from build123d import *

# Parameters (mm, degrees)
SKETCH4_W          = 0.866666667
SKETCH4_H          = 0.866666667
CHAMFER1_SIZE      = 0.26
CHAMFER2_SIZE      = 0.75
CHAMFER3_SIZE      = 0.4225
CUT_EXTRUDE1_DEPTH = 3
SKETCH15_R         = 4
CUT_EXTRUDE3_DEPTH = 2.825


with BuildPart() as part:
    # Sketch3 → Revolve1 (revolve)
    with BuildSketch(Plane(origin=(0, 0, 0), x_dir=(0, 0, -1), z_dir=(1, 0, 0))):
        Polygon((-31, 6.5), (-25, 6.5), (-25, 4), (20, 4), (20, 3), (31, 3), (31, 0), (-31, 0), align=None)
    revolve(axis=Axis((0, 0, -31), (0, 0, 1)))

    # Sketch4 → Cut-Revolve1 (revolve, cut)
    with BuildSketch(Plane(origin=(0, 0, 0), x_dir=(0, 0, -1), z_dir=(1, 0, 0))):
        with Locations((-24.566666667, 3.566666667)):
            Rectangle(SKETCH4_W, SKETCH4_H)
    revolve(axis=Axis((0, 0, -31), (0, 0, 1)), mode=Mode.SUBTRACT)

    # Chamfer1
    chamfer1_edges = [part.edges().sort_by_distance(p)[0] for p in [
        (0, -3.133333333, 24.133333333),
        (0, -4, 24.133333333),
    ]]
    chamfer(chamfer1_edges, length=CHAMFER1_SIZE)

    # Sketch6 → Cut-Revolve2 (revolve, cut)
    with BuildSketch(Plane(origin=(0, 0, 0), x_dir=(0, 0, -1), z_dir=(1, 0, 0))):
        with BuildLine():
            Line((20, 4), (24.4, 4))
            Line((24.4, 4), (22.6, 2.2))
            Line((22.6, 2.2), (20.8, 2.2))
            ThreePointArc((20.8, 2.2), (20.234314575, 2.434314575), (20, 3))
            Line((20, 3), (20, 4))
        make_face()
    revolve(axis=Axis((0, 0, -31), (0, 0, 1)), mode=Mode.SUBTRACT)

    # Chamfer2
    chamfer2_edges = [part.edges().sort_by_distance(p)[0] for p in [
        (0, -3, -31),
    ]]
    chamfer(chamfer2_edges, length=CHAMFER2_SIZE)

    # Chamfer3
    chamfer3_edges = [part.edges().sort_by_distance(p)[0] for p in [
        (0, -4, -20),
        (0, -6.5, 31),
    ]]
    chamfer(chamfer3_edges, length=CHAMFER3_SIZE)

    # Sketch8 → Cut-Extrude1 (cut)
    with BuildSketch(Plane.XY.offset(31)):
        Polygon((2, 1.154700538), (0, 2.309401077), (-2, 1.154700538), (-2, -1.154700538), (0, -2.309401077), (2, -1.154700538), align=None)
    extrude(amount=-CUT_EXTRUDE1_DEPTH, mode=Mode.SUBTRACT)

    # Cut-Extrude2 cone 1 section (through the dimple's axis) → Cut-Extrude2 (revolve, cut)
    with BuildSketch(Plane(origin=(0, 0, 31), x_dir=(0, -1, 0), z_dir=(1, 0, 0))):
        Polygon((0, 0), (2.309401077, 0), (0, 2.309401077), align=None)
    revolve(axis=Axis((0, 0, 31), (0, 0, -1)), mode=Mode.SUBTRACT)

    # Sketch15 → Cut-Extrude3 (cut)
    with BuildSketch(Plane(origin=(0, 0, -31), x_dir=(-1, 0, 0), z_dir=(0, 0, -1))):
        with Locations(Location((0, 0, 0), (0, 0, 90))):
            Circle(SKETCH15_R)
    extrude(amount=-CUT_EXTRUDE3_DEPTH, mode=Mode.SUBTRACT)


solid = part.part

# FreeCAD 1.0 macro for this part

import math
import FreeCAD as App
import Part
import Sketcher
Q = App.Units.Quantity


def edges_at(feature, points):
    """Names of the edges that pass closest to the given points."""
    edges = feature.Shape.Edges
    near = lambda p: min(range(len(edges)), key=lambda i: edges[i].distToShape(Part.Vertex(*p))[0])
    return sorted({f"Edge{near(p) + 1}" for p in points})

doc = App.newDocument("Part")
params = doc.addObject("Spreadsheet::Sheet", "Params")
for row, (alias, value) in enumerate([
    ("sketch1_width", "3 mm"),
    ("sketch1_width2", "1 mm"),
    ("sketch1_height", "6 mm"),
    ("sketch1_height2", "62 mm"),
    ("sketch1_height3", "11 mm"),
    ("revolution_angle", "360 deg"),
    ("groove_angle", "360 deg"),
    ("chamfer_size", "0.26 mm"),
    ("sketch3_radius", "0.8 mm"),
    ("sketch3_width", "1 mm"),
    ("sketch3_height", "4.4 mm"),
    ("groove2_angle", "360 deg"),
    ("chamfer2_size", "0.75 mm"),
    ("chamfer3_size", "0.4225 mm"),
    ("pocket1_length", "3 mm"),
    ("groove3_angle", "360 deg"),
    ("sketch6_diameter", "8 mm"),
    ("pocket2_length", "2.825 mm"),
], start=1):
    params.set(f"A{row}", alias)
    params.set(f"B{row}", "=" + value)
    params.setAlias(f"B{row}", alias)

body = doc.addObject("PartDesign::Body", "Body")

# Sketch on YZ plane
sketch1 = doc.addObject("Sketcher::SketchObject", "Sketch")
body.addObject(sketch1)
sketch1.AttachmentSupport = (doc.YZ_Plane, [""])
sketch1.MapMode = "FlatFace"
sketch1.addGeometry([
    Part.LineSegment(App.Vector(6.5, 25, 0), App.Vector(6.5, 31, 0)),  # 0
    Part.LineSegment(App.Vector(6.5, 31, 0), App.Vector(0, 31, 0)),  # 1
    Part.LineSegment(App.Vector(0, 31, 0), App.Vector(0, -31, 0)),  # 2
    Part.LineSegment(App.Vector(0, -31, 0), App.Vector(3, -31, 0)),  # 3
    Part.LineSegment(App.Vector(3, -31, 0), App.Vector(3, -20, 0)),  # 4
    Part.LineSegment(App.Vector(3, -20, 0), App.Vector(4, -20, 0)),  # 5
    Part.LineSegment(App.Vector(4, -20, 0), App.Vector(4, 25, 0)),  # 6
    Part.LineSegment(App.Vector(4, 25, 0), App.Vector(6.5, 25, 0)),  # 7
], False)
sketch1.addConstraint([
    Sketcher.Constraint("Coincident", 0, 2, 1, 1),
    Sketcher.Constraint("Coincident", 1, 2, 2, 1),
    Sketcher.Constraint("Coincident", 2, 2, 3, 1),
    Sketcher.Constraint("Coincident", 3, 2, 4, 1),
    Sketcher.Constraint("Coincident", 4, 2, 5, 1),
    Sketcher.Constraint("Coincident", 5, 2, 6, 1),
    Sketcher.Constraint("Coincident", 6, 2, 7, 1),
    Sketcher.Constraint("Coincident", 7, 2, 0, 1),
    Sketcher.Constraint("Vertical", 0),
    Sketcher.Constraint("Horizontal", 1),
    Sketcher.Constraint("Vertical", 2),
    Sketcher.Constraint("Horizontal", 3),
    Sketcher.Constraint("Vertical", 4),
    Sketcher.Constraint("Horizontal", 5),
    Sketcher.Constraint("Vertical", 6),
    Sketcher.Constraint("Horizontal", 7),
    Sketcher.Constraint("Symmetric", 1, 2, 2, 2, -1, 1),
    Sketcher.Constraint("DistanceX", 3, 1, 3, 2, Q("3 mm")),
    Sketcher.Constraint("DistanceX", 5, 1, 5, 2, Q("1 mm")),
    Sketcher.Constraint("DistanceY", 0, 1, 0, 2, Q("6 mm")),
    Sketcher.Constraint("DistanceY", 2, 2, 2, 1, Q("62 mm")),
    Sketcher.Constraint("DistanceY", 4, 1, 4, 2, Q("11 mm")),
    Sketcher.Constraint("DistanceX", 1, 2, 1, 1, Q("6.5 mm")),
])
sketch1.setExpression("Constraints[17]", "Params.sketch1_width")
sketch1.setExpression("Constraints[18]", "Params.sketch1_width2")
sketch1.setExpression("Constraints[19]", "Params.sketch1_height")
sketch1.setExpression("Constraints[20]", "Params.sketch1_height2")
sketch1.setExpression("Constraints[21]", "Params.sketch1_height3")
revolution = doc.addObject("PartDesign::Revolution", "Revolution")
body.addObject(revolution)
revolution.Profile = sketch1
revolution.ReferenceAxis = (sketch1, ["V_Axis"])
revolution.setExpression("Angle", "Params.revolution_angle")

# Sketch on YZ plane
sketch2 = doc.addObject("Sketcher::SketchObject", "Sketch001")
body.addObject(sketch2)
sketch2.AttachmentSupport = (doc.YZ_Plane, [""])
sketch2.MapMode = "FlatFace"
sketch2.addGeometry([
    Part.LineSegment(App.Vector(4, 25, 0), App.Vector(3.1, 25, 0)),
    Part.LineSegment(App.Vector(3.1, 25, 0), App.Vector(3.1, 24.1, 0)),
    Part.LineSegment(App.Vector(3.1, 24.1, 0), App.Vector(4, 24.1, 0)),
    Part.LineSegment(App.Vector(4, 24.1, 0), App.Vector(4, 25, 0)),
], False)
sketch2.addConstraint([
    Sketcher.Constraint("Coincident", 0, 2, 1, 1),
    Sketcher.Constraint("Coincident", 1, 2, 2, 1),
    Sketcher.Constraint("Coincident", 2, 2, 3, 1),
    Sketcher.Constraint("Coincident", 3, 2, 0, 1),
    Sketcher.Constraint("Horizontal", 0),
    Sketcher.Constraint("Vertical", 1),
    Sketcher.Constraint("Horizontal", 2),
    Sketcher.Constraint("Vertical", 3),
    Sketcher.Constraint("Equal", 2, 1),
    Sketcher.Constraint("DistanceY", -1, 1, 0, 2, Q("25 mm")),
    Sketcher.Constraint("DistanceX", -1, 1, 2, 2, Q("4 mm")),
    Sketcher.Constraint("DistanceX", 0, 2, 0, 1, Q("0.866667 mm")),
])
groove = doc.addObject("PartDesign::Groove", "Groove")
body.addObject(groove)
groove.Profile = sketch2
groove.ReferenceAxis = (sketch2, ["V_Axis"])
groove.setExpression("Angle", "Params.groove_angle")
doc.recompute()

chamfer = doc.addObject("PartDesign::Chamfer", "Chamfer")
body.addObject(chamfer)
chamfer.Base = (groove, edges_at(groove, [(0, -3.133, 24.133), (0, -4, 24.133)]))
chamfer.setExpression("Size", "Params.chamfer_size")

# Sketch on YZ plane
sketch3 = doc.addObject("Sketcher::SketchObject", "Sketch002")
body.addObject(sketch3)
sketch3.AttachmentSupport = (doc.YZ_Plane, [""])
sketch3.MapMode = "FlatFace"
sketch3.addGeometry([
    Part.LineSegment(App.Vector(4, -24.4, 0), App.Vector(4, -20, 0)),  # 0
    Part.LineSegment(App.Vector(4, -20, 0), App.Vector(3, -20, 0)),  # 1
    Part.ArcOfCircle(Part.Circle(App.Vector(3, -20.8, 0), App.Vector(0, 0, 1), 0.8), math.radians(90), math.radians(180)),  # 2
    Part.LineSegment(App.Vector(2.2, -20.8, 0), App.Vector(2.2, -22.6, 0)),  # 3
    Part.LineSegment(App.Vector(2.2, -22.6, 0), App.Vector(4, -24.4, 0)),  # 4
], False)
sketch3.addConstraint([
    Sketcher.Constraint("Coincident", 0, 2, 1, 1),
    Sketcher.Constraint("Tangent", 1, 2, 2, 1),
    Sketcher.Constraint("Tangent", 2, 2, 3, 1),
    Sketcher.Constraint("Coincident", 3, 2, 4, 1),
    Sketcher.Constraint("Coincident", 4, 2, 0, 1),
    Sketcher.Constraint("Vertical", 0),
    Sketcher.Constraint("Horizontal", 1),
    Sketcher.Constraint("Vertical", 3),
    Sketcher.Constraint("Radius", 2, Q("0.8 mm")),
    Sketcher.Constraint("DistanceX", 1, 2, 1, 1, Q("1 mm")),
    Sketcher.Constraint("Angle", 4, Q("-45 deg")),
    Sketcher.Constraint("DistanceY", 0, 1, 0, 2, Q("4.4 mm")),
    Sketcher.Constraint("DistanceX", -1, 1, 2, 3, Q("3 mm")),
    Sketcher.Constraint("DistanceY", 0, 2, -1, 1, Q("20 mm")),
])
sketch3.setExpression("Constraints[8]", "Params.sketch3_radius")
sketch3.setExpression("Constraints[9]", "Params.sketch3_width")
sketch3.setExpression("Constraints[11]", "Params.sketch3_height")
groove2 = doc.addObject("PartDesign::Groove", "Groove001")
body.addObject(groove2)
groove2.Profile = sketch3
groove2.ReferenceAxis = (sketch3, ["V_Axis"])
groove2.setExpression("Angle", "Params.groove2_angle")
doc.recompute()

chamfer2 = doc.addObject("PartDesign::Chamfer", "Chamfer001")
body.addObject(chamfer2)
chamfer2.Base = (groove2, edges_at(groove2, [(0, -3, -31)]))
chamfer2.setExpression("Size", "Params.chamfer2_size")
doc.recompute()

chamfer3 = doc.addObject("PartDesign::Chamfer", "Chamfer002")
body.addObject(chamfer3)
chamfer3.Base = (chamfer2, edges_at(chamfer2, [(0, -4, -20), (0, -6.5, 31)]))
chamfer3.setExpression("Size", "Params.chamfer3_size")

# Sketch on XY plane
sketch4 = doc.addObject("Sketcher::SketchObject", "Sketch003")
body.addObject(sketch4)
sketch4.AttachmentSupport = (doc.XY_Plane, [""])
sketch4.MapMode = "FlatFace"
sketch4.AttachmentOffset = App.Placement(App.Vector(0, 0, 31), App.Rotation())
sketch4.addGeometry([
    Part.LineSegment(App.Vector(2, 1.2, 0), App.Vector(0, 2.3, 0)),  # 0
    Part.LineSegment(App.Vector(0, 2.3, 0), App.Vector(-2, 1.2, 0)),  # 1
    Part.LineSegment(App.Vector(-2, 1.2, 0), App.Vector(-2, -1.2, 0)),  # 2
    Part.LineSegment(App.Vector(-2, -1.2, 0), App.Vector(0, -2.3, 0)),  # 3
    Part.LineSegment(App.Vector(0, -2.3, 0), App.Vector(2, -1.2, 0)),  # 4
    Part.LineSegment(App.Vector(2, -1.2, 0), App.Vector(2, 1.2, 0)),  # 5
], False)
sketch4.addConstraint([
    Sketcher.Constraint("Coincident", 0, 2, 1, 1),
    Sketcher.Constraint("Coincident", 1, 2, 2, 1),
    Sketcher.Constraint("Coincident", 2, 2, 3, 1),
    Sketcher.Constraint("Coincident", 3, 2, 4, 1),
    Sketcher.Constraint("Coincident", 4, 2, 5, 1),
    Sketcher.Constraint("Coincident", 5, 2, 0, 1),
    Sketcher.Constraint("Vertical", 2),
    Sketcher.Constraint("Vertical", 5),
    Sketcher.Constraint("Symmetric", 0, 2, 3, 2, -1, 1),
    Sketcher.Constraint("Symmetric", 1, 2, 4, 2, -1, 1),
    Sketcher.Constraint("PointOnObject", 0, 2, -2),
    Sketcher.Constraint("Parallel", 0, 3),
    Sketcher.Constraint("Horizontal", 2, 2, 4, 2),
    Sketcher.Constraint("Angle", 0, Q("150 deg")),
    Sketcher.Constraint("DistanceX", 1, 2, -1, 1, Q("2 mm")),
    Sketcher.Constraint("DistanceY", 2, 2, 2, 1, Q("2.309401 mm")),
])
pocket1 = doc.addObject("PartDesign::Pocket", "Pocket")
body.addObject(pocket1)
pocket1.Profile = sketch4
pocket1.setExpression("Length", "Params.pocket1_length")

# Sketch on YZ plane
sketch5 = doc.addObject("Sketcher::SketchObject", "Sketch004")
body.addObject(sketch5)
sketch5.AttachmentSupport = (doc.YZ_Plane, [""])
sketch5.MapMode = "FlatFace"
sketch5.addGeometry([
    Part.LineSegment(App.Vector(0, 31, 0), App.Vector(-2.3, 31, 0)),
    Part.LineSegment(App.Vector(-2.3, 31, 0), App.Vector(0, 28.7, 0)),
    Part.LineSegment(App.Vector(0, 28.7, 0), App.Vector(0, 31, 0)),
], False)
sketch5.addConstraint([
    Sketcher.Constraint("Coincident", 0, 2, 1, 1),
    Sketcher.Constraint("Coincident", 1, 2, 2, 1),
    Sketcher.Constraint("Coincident", 2, 2, 0, 1),
    Sketcher.Constraint("Horizontal", 0),
    Sketcher.Constraint("Vertical", 2),
    Sketcher.Constraint("PointOnObject", 1, 2, -2),
    Sketcher.Constraint("Equal", 0, 2),
    Sketcher.Constraint("DistanceY", -1, 1, 0, 2, Q("31 mm")),
    Sketcher.Constraint("DistanceX", 0, 2, 0, 1, Q("2.309401 mm")),
])
groove3 = doc.addObject("PartDesign::Groove", "Groove002")
body.addObject(groove3)
groove3.Profile = sketch5
groove3.ReferenceAxis = (sketch5, ["V_Axis"])
groove3.setExpression("Angle", "Params.groove3_angle")

# Sketch on XY plane
sketch6 = doc.addObject("Sketcher::SketchObject", "Sketch005")
body.addObject(sketch6)
sketch6.AttachmentSupport = (doc.XY_Plane, [""])
sketch6.MapMode = "FlatFace"
sketch6.AttachmentOffset = App.Placement(App.Vector(0, 0, -31), App.Rotation())
sketch6.addGeometry(Part.Circle(App.Vector(0, 0, 0), App.Vector(0, 0, 1), 4), False)
sketch6.addConstraint([
    Sketcher.Constraint("Coincident", 0, 3, -1, 1),
    Sketcher.Constraint("Diameter", 0, Q("8 mm")),
])
sketch6.setExpression("Constraints[1]", "Params.sketch6_diameter")
pocket2 = doc.addObject("PartDesign::Pocket", "Pocket001")
body.addObject(pocket2)
pocket2.Profile = sketch6
pocket2.setExpression("Length", "Params.pocket2_length")
pocket2.Reversed = True

doc.recompute()
